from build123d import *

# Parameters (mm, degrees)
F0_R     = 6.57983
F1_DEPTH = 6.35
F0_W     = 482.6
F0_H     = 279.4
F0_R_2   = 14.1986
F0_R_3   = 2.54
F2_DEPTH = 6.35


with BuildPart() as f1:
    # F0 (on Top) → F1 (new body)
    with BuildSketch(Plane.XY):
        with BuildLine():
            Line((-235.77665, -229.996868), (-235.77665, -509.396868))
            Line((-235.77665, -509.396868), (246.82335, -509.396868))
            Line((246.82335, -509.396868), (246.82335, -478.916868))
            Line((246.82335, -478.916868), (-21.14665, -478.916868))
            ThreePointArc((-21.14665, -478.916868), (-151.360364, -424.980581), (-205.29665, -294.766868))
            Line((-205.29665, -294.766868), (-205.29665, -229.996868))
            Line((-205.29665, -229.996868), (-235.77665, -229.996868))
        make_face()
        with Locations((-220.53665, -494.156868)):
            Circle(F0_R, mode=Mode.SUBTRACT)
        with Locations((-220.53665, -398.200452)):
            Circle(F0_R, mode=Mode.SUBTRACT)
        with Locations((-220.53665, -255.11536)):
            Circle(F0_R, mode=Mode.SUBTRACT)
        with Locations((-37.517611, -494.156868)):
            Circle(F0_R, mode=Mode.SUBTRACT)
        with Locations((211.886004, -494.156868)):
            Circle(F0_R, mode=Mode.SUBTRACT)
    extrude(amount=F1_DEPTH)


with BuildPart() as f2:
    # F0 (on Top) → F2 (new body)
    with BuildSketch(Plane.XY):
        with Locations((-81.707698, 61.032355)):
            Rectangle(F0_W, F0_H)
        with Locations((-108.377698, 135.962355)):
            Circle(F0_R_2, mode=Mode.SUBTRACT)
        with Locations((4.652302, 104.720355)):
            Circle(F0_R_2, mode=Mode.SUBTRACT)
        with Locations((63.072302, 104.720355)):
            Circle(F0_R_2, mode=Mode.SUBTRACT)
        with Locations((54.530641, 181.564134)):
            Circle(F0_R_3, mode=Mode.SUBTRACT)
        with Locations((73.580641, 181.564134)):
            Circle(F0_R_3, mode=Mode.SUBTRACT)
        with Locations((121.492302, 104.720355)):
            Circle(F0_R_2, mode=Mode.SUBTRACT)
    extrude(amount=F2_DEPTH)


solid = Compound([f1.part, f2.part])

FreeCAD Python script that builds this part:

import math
import FreeCAD as App
import Part
import Sketcher
from FreeCAD import Vector
Q = App.Units.Quantity

doc = App.newDocument("Part")
body = doc.addObject("PartDesign::Body", "Body")

# Sketch on XY plane
sketch1 = body.newObject("Sketcher::SketchObject", "Sketch")
sketch1.AttachmentSupport = (doc.getObject("XY_Plane"), [""])
sketch1.MapMode = "FlatFace"
sketch1.addGeometry(Part.LineSegment(Vector(-236, -230, 0), Vector(-236, -509, 0)), False)
sketch1.addGeometry(Part.LineSegment(Vector(-236, -509, 0), Vector(247, -509, 0)), False)
sketch1.addGeometry(Part.LineSegment(Vector(247, -509, 0), Vector(247, -479, 0)), False)
sketch1.addGeometry(Part.LineSegment(Vector(247, -479, 0), Vector(-21, -479, 0)), False)
sketch1.addGeometry(Part.ArcOfCircle(Part.Circle(Vector(-21, -295, 0), Vector(0, 0, 1), 184), math.radians(-180), math.radians(-90)), False)
sketch1.addGeometry(Part.LineSegment(Vector(-205, -295, 0), Vector(-205, -230, 0)), False)
sketch1.addGeometry(Part.LineSegment(Vector(-205, -230, 0), Vector(-236, -230, 0)), False)
sketch1.addGeometry(Part.Circle(Vector(-221, -494, 0), Vector(0, 0, 1), 7), False)
sketch1.addGeometry(Part.Circle(Vector(-38, -494, 0), Vector(0, 0, 1), 7), False)
sketch1.addGeometry(Part.Circle(Vector(-221, -398, 0), Vector(0, 0, 1), 7), False)
sketch1.addGeometry(Part.Circle(Vector(212, -494, 0), Vector(0, 0, 1), 7), False)
sketch1.addGeometry(Part.Circle(Vector(-221, -255, 0), Vector(0, 0, 1), 7), False)
sketch1.addConstraint(Sketcher.Constraint("Coincident", 0, 2, 1, 1))
sketch1.addConstraint(Sketcher.Constraint("Coincident", 1, 2, 2, 1))
sketch1.addConstraint(Sketcher.Constraint("Coincident", 2, 2, 3, 1))
sketch1.addConstraint(Sketcher.Constraint("Tangent", 3, 2, 4, 2))
sketch1.addConstraint(Sketcher.Constraint("Tangent", 4, 1, 5, 1))
sketch1.addConstraint(Sketcher.Constraint("Coincident", 5, 2, 6, 1))
sketch1.addConstraint(Sketcher.Constraint("Coincident", 6, 2, 0, 1))
sketch1.addConstraint(Sketcher.Constraint("Vertical", 0))
sketch1.addConstraint(Sketcher.Constraint("Horizontal", 1))
sketch1.addConstraint(Sketcher.Constraint("Vertical", 2))
sketch1.addConstraint(Sketcher.Constraint("Horizontal", 3))
sketch1.addConstraint(Sketcher.Constraint("Vertical", 5))
sketch1.addConstraint(Sketcher.Constraint("Horizontal", 6))
sketch1.addConstraint(Sketcher.Constraint("Equal", 7, 8))
sketch1.addConstraint(Sketcher.Constraint("Equal", 8, 9))
sketch1.addConstraint(Sketcher.Constraint("Equal", 9, 10))
sketch1.addConstraint(Sketcher.Constraint("Equal", 10, 11))
sketch1.addConstraint(Sketcher.Constraint("Horizontal", 7, 3, 8, 3))
sketch1.addConstraint(Sketcher.Constraint("Horizontal", 8, 3, 10, 3))
sketch1.addConstraint(Sketcher.Constraint("Vertical", 7, 3, 9, 3))
sketch1.addConstraint(Sketcher.Constraint("Vertical", 9, 3, 11, 3))
sketch1.addConstraint(Sketcher.Constraint("Equal", 6, 2))
sketch1.addConstraint(Sketcher.Constraint("DistanceX", 1, 1, 1, 2, Q("19 in")))
sketch1.addConstraint(Sketcher.Constraint("DistanceY", 0, 2, 0, 1, Q("11 in")))
sketch1.addConstraint(Sketcher.Constraint("Radius", 4, Q("7.25 in")))
sketch1.addConstraint(Sketcher.Constraint("DistanceX", 6, 2, 6, 1, Q("1.2 in")))
sketch1.addConstraint(Sketcher.Constraint("DistanceX", 0, 2, 7, 3, Q("0.6 in")))
sketch1.addConstraint(Sketcher.Constraint("DistanceY", 0, 2, 7, 3, Q("0.6 in")))
sketch1.addConstraint(Sketcher.Constraint("Diameter", 7, 13.15966))
sketch1.addConstraint(Sketcher.Constraint("DistanceX", 4, 3, -1, 1, 21.146649))
sketch1.addConstraint(Sketcher.Constraint("DistanceX", 8, 3, -1, 1, 37.517611))
sketch1.addConstraint(Sketcher.Constraint("DistanceY", 9, 3, -1, 1, 398.200452))
sketch1.addConstraint(Sketcher.Constraint("DistanceY", 11, 3, -1, 1, 255.11536))
sketch1.addConstraint(Sketcher.Constraint("DistanceY", 0, 2, -1, 1, 509.396868))
sketch1.addConstraint(Sketcher.Constraint("DistanceX", -1, 1, 10, 3, 211.886004))
pad1 = body.newObject("PartDesign::Pad", "Pad")
pad1.Profile = sketch1
pad1.Length = Q("0.25 in")
body2 = doc.addObject("PartDesign::Body", "Body001")

# Sketch on XY plane
sketch2 = body2.newObject("Sketcher::SketchObject", "Sketch001")
sketch2.AttachmentSupport = (doc.getObject("XY_Plane001"), [""])
sketch2.MapMode = "FlatFace"
sketch2.addGeometry(Part.LineSegment(Vector(-323, 200.7, 0), Vector(-323, -78.7, 0)), False)
sketch2.addGeometry(Part.LineSegment(Vector(-323, -78.7, 0), Vector(159.6, -78.7, 0)), False)
sketch2.addGeometry(Part.LineSegment(Vector(159.6, -78.7, 0), Vector(159.6, 200.7, 0)), False)
sketch2.addGeometry(Part.LineSegment(Vector(159.6, 200.7, 0), Vector(-323, 200.7, 0)), False)
sketch2.addGeometry(Part.Circle(Vector(4.7, 104.7, 0), Vector(0, 0, 1), 14.2), False)
sketch2.addGeometry(Part.Circle(Vector(-108.4, 136, 0), Vector(0, 0, 1), 14.2), False)
sketch2.addGeometry(Part.Circle(Vector(63.1, 104.7, 0), Vector(0, 0, 1), 14.2), False)
sketch2.addGeometry(Part.Circle(Vector(121.5, 104.7, 0), Vector(0, 0, 1), 14.2), False)
sketch2.addGeometry(Part.Circle(Vector(54.5, 181.6, 0), Vector(0, 0, 1), 2.5), False)
sketch2.addGeometry(Part.Circle(Vector(73.6, 181.6, 0), Vector(0, 0, 1), 2.5), False)
sketch2.addConstraint(Sketcher.Constraint("Coincident", 0, 2, 1, 1))
sketch2.addConstraint(Sketcher.Constraint("Coincident", 1, 2, 2, 1))
sketch2.addConstraint(Sketcher.Constraint("Coincident", 2, 2, 3, 1))
sketch2.addConstraint(Sketcher.Constraint("Coincident", 3, 2, 0, 1))
sketch2.addConstraint(Sketcher.Constraint("Vertical", 0))
sketch2.addConstraint(Sketcher.Constraint("Horizontal", 1))
sketch2.addConstraint(Sketcher.Constraint("Vertical", 2))
sketch2.addConstraint(Sketcher.Constraint("Horizontal", 3))
sketch2.addConstraint(Sketcher.Constraint("Equal", 4, 5))
sketch2.addConstraint(Sketcher.Constraint("Equal", 5, 6))
sketch2.addConstraint(Sketcher.Constraint("Equal", 6, 7))
sketch2.addConstraint(Sketcher.Constraint("Equal", 8, 9))
sketch2.addConstraint(Sketcher.Constraint("Horizontal", 4, 3, 6, 3))
sketch2.addConstraint(Sketcher.Constraint("Horizontal", 6, 3, 7, 3))
sketch2.addConstraint(Sketcher.Constraint("Horizontal", 8, 3, 9, 3))
sketch2.addConstraint(Sketcher.Constraint("Diameter", 8, Q("0.2 in")))
sketch2.addConstraint(Sketcher.Constraint("DistanceX", 1, 1, 1, 2, Q("19 in")))
sketch2.addConstraint(Sketcher.Constraint("DistanceY", 0, 2, 0, 1, Q("11 in")))
sketch2.addConstraint(Sketcher.Constraint("Diameter", 4, Q("1.118 in")))
sketch2.addConstraint(Sketcher.Constraint("DistanceX", 4, 3, 6, 3, Q("2.3 in")))
sketch2.addConstraint(Sketcher.Constraint("DistanceX", 6, 3, 7, 3, Q("2.3 in")))
sketch2.addConstraint(Sketcher.Constraint("DistanceX", 0, 2, 4, 3, Q("12.9 in")))
sketch2.addConstraint(Sketcher.Constraint("DistanceX", 5, 3, 4, 3, Q("4.45 in")))
sketch2.addConstraint(Sketcher.Constraint("DistanceY", 4, 3, 5, 3, Q("1.23 in")))
sketch2.addConstraint(Sketcher.Constraint("DistanceX", 8, 3, 9, 3, Q("0.75 in")))
sketch2.addConstraint(Sketcher.Constraint("DistanceY", 0, 2, 5, 3, Q("8.45 in")))
sketch2.addConstraint(Sketcher.Constraint("DistanceX", -1, 1, 4, 3, 4.652302))
sketch2.addConstraint(Sketcher.Constraint("DistanceX", -1, 1, 8, 3, 54.530641))
sketch2.addConstraint(Sketcher.Constraint("DistanceY", 6, 3, 8, 3, 76.843779))
sketch2.addConstraint(Sketcher.Constraint("DistanceY", -1, 1, 4, 3, 104.720355))
pad2 = body2.newObject("PartDesign::Pad", "Pad001")
pad2.Profile = sketch2
pad2.Length = Q("0.25 in")

doc.recompute()
